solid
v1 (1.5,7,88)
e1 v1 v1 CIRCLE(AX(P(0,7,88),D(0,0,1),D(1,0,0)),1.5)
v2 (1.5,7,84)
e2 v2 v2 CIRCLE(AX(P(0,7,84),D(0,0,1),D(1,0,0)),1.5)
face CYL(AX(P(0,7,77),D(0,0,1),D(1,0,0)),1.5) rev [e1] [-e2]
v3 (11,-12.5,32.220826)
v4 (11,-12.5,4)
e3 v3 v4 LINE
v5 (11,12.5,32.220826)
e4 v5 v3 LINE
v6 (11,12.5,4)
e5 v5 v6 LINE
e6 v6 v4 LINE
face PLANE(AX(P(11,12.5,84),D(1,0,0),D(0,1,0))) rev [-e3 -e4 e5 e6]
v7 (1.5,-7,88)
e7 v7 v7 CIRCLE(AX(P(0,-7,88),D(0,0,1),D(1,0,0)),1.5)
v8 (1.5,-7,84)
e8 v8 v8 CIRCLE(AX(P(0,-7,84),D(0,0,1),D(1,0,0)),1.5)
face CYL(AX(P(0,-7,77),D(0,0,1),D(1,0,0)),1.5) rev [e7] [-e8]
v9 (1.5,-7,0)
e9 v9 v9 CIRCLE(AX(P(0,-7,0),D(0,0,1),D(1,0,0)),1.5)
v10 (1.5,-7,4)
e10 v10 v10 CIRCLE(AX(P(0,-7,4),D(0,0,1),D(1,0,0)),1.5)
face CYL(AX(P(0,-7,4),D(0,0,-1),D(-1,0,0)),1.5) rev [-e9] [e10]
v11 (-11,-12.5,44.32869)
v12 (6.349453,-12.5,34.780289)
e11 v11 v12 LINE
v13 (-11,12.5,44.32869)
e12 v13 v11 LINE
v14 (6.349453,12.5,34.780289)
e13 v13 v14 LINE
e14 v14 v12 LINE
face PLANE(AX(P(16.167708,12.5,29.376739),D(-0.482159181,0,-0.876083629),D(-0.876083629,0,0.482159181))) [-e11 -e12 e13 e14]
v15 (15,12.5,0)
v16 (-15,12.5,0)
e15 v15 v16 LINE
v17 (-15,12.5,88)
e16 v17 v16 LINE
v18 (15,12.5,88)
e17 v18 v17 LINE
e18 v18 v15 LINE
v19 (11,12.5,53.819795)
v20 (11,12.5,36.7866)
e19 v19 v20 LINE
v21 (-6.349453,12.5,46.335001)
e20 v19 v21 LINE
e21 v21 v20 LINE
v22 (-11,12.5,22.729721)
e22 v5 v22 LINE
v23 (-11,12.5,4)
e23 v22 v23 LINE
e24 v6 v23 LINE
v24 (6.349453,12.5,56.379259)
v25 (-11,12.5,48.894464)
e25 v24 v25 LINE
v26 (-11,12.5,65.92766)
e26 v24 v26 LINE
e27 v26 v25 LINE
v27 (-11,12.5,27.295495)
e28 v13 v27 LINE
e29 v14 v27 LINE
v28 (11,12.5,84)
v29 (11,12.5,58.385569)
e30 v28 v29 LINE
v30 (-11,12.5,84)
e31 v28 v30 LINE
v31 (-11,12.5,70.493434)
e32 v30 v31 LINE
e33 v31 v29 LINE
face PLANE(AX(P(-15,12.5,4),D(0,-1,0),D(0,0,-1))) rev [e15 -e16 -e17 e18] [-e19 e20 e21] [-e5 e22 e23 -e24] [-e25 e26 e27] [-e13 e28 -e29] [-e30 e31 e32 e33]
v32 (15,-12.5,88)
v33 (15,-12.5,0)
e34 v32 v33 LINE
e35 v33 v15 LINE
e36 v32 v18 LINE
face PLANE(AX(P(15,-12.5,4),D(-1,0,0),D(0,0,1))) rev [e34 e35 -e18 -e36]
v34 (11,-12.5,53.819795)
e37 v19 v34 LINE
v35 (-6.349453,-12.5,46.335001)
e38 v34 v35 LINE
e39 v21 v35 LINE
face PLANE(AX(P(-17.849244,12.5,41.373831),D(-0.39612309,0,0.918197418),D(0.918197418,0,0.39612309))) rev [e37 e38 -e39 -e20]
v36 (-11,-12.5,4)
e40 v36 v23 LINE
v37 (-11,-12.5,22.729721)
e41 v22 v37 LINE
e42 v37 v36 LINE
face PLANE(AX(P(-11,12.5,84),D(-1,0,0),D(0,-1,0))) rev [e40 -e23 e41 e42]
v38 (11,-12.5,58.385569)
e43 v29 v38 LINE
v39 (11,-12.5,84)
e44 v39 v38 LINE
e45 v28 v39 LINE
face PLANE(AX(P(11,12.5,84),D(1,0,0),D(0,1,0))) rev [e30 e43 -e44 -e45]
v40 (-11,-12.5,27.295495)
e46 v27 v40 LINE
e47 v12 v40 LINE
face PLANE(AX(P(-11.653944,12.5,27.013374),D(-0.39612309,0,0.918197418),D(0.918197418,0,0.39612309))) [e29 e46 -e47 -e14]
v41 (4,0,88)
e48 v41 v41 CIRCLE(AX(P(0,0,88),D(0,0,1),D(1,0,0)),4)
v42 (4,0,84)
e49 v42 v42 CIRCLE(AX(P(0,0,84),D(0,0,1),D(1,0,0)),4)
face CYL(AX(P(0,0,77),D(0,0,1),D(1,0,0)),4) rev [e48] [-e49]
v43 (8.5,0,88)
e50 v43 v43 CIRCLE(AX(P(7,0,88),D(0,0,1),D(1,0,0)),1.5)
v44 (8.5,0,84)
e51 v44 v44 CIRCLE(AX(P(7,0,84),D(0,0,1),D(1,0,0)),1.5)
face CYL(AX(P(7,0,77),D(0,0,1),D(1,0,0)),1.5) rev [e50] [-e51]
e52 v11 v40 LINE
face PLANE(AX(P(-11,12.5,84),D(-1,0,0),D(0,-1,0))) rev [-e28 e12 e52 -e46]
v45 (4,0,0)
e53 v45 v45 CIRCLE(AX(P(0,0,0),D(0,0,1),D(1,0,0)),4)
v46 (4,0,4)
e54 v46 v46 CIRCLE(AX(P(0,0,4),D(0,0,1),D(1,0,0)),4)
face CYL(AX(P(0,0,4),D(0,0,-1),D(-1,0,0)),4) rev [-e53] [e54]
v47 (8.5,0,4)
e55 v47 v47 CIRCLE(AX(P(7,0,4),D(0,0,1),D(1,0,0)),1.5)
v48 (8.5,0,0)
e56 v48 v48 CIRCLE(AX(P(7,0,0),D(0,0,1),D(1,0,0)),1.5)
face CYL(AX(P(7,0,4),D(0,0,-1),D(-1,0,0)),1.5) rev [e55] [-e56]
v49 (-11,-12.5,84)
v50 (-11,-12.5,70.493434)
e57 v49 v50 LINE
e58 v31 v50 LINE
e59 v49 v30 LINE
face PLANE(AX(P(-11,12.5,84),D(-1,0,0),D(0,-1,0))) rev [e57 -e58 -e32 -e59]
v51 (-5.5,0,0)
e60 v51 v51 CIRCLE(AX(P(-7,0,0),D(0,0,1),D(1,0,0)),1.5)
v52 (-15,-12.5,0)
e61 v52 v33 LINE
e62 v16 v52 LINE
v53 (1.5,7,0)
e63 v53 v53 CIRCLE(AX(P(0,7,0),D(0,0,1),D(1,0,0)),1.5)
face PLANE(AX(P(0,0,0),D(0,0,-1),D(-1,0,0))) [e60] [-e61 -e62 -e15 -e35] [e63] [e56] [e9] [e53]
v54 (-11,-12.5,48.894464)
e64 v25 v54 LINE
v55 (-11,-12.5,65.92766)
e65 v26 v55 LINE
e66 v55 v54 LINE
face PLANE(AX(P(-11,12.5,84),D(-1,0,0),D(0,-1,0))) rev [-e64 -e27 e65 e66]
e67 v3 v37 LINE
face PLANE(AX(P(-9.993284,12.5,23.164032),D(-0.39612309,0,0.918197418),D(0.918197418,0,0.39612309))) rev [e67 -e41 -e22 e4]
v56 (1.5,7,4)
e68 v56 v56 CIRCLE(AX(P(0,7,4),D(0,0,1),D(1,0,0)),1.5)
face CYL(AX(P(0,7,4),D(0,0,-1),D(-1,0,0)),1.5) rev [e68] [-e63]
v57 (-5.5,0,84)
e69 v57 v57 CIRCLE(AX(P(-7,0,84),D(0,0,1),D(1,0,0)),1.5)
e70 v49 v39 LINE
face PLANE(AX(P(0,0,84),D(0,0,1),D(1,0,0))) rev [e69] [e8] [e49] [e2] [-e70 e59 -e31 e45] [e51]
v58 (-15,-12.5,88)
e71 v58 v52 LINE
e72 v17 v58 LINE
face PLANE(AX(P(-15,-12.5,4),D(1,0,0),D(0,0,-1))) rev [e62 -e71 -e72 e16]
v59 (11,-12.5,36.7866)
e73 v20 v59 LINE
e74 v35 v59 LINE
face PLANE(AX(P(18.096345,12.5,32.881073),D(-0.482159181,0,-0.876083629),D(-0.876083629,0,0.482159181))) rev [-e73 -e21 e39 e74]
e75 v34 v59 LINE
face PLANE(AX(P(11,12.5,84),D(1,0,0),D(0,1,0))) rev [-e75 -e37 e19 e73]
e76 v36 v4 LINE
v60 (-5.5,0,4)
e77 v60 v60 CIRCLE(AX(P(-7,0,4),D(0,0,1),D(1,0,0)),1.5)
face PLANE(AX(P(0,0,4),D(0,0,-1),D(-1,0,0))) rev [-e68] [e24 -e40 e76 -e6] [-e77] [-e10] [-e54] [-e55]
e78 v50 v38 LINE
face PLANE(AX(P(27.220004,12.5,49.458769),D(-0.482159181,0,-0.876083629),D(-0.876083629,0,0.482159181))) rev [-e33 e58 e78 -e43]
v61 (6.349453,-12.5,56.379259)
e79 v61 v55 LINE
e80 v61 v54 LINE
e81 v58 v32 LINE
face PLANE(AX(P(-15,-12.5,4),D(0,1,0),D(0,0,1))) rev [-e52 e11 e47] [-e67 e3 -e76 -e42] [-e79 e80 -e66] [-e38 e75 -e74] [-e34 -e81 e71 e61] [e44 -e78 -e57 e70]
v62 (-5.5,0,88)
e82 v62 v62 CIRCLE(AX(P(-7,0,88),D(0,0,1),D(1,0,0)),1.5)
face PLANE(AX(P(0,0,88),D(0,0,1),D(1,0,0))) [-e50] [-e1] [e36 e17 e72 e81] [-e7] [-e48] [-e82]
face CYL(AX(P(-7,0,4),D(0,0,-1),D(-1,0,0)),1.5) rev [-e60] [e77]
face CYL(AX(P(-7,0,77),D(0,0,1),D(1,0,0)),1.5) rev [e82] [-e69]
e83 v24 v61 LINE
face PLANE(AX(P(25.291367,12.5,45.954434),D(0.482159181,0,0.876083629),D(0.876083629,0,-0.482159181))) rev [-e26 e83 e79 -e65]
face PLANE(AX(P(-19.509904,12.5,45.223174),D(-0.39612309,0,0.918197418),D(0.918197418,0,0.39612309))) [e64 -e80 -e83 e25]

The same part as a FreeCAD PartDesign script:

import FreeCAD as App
import Part
import Sketcher
from FreeCAD import Vector
Q = App.Units.Quantity

doc = App.newDocument("Part")
body = doc.addObject("PartDesign::Body", "Body")

# Sketch on XY plane
sketch1 = body.newObject("Sketcher::SketchObject", "Sketch")
sketch1.AttachmentSupport = (doc.getObject("XY_Plane"), [""])
sketch1.MapMode = "FlatFace"
sketch1.addGeometry(Part.LineSegment(Vector(-15, 12.5, 0), Vector(-15, -12.5, 0)), False)
sketch1.addGeometry(Part.LineSegment(Vector(-15, -12.5, 0), Vector(15, -12.5, 0)), False)
sketch1.addGeometry(Part.LineSegment(Vector(15, -12.5, 0), Vector(15, 12.5, 0)), False)
sketch1.addGeometry(Part.LineSegment(Vector(15, 12.5, 0), Vector(-15, 12.5, 0)), False)
sketch1.addGeometry(Part.Circle(Vector(0, -7, 0), Vector(0, 0, 1), 1.5), False)
sketch1.addGeometry(Part.Circle(Vector(-7, 0, 0), Vector(0, 0, 1), 1.5), False)
sketch1.addGeometry(Part.Circle(Vector(0, 0, 0), Vector(0, 0, 1), 4), False)
sketch1.addGeometry(Part.Circle(Vector(7, 0, 0), Vector(0, 0, 1), 1.5), False)
sketch1.addGeometry(Part.Circle(Vector(0, 7, 0), Vector(0, 0, 1), 1.5), False)
sketch1.addConstraint(Sketcher.Constraint("Coincident", 0, 2, 1, 1))
sketch1.addConstraint(Sketcher.Constraint("Coincident", 1, 2, 2, 1))
sketch1.addConstraint(Sketcher.Constraint("Coincident", 2, 2, 3, 1))
sketch1.addConstraint(Sketcher.Constraint("Coincident", 3, 2, 0, 1))
sketch1.addConstraint(Sketcher.Constraint("Vertical", 0))
sketch1.addConstraint(Sketcher.Constraint("Horizontal", 1))
sketch1.addConstraint(Sketcher.Constraint("Vertical", 2))
sketch1.addConstraint(Sketcher.Constraint("Horizontal", 3))
sketch1.addConstraint(Sketcher.Constraint("Coincident", 6, 3, -1, 1))
sketch1.addConstraint(Sketcher.Constraint("Equal", 4, 5))
sketch1.addConstraint(Sketcher.Constraint("Equal", 5, 7))
sketch1.addConstraint(Sketcher.Constraint("Equal", 7, 8))
sketch1.addConstraint(Sketcher.Constraint("Symmetric", 5, 3, 7, 3, -1, 1))
sketch1.addConstraint(Sketcher.Constraint("Symmetric", 4, 3, 8, 3, -1, 1))
sketch1.addConstraint(Sketcher.Constraint("Symmetric", 0, 2, 2, 2, -1, 1))
sketch1.addConstraint(Sketcher.Constraint("PointOnObject", 4, 3, -2))
sketch1.addConstraint(Sketcher.Constraint("PointOnObject", 5, 3, -1))
sketch1.addConstraint(Sketcher.Constraint("Diameter", 4, Q("3 mm")))
sketch1.addConstraint(Sketcher.Constraint("Diameter", 6, Q("8 mm")))
sketch1.addConstraint(Sketcher.Constraint("DistanceX", 1, 1, 1, 2, Q("30 mm")))
sketch1.addConstraint(Sketcher.Constraint("DistanceY", 0, 2, 0, 1, Q("25 mm")))
sketch1.addConstraint(Sketcher.Constraint("DistanceY", 4, 3, -1, 1, Q("7 mm")))
sketch1.addConstraint(Sketcher.Constraint("DistanceX", 5, 3, -1, 1, Q("7 mm")))
pad1 = body.newObject("PartDesign::Pad", "Pad")
pad1.Profile = sketch1
pad1.Length = 4

# Sketch on XY plane
sketch2 = body.newObject("Sketcher::SketchObject", "Sketch001")
sketch2.AttachmentSupport = (doc.getObject("XY_Plane"), [""])
sketch2.MapMode = "FlatFace"
sketch2.AttachmentOffset = App.Placement(Vector(0, 0, 4), App.Rotation())
sketch2.addGeometry(Part.LineSegment(Vector(-15, 12.5, 0), Vector(-15, -12.5, 0)), False)
sketch2.addGeometry(Part.LineSegment(Vector(-15, -12.5, 0), Vector(-11, -12.5, 0)), False)
sketch2.addGeometry(Part.LineSegment(Vector(-11, -12.5, 0), Vector(-11, 12.5, 0)), False)
sketch2.addGeometry(Part.LineSegment(Vector(-11, 12.5, 0), Vector(-15, 12.5, 0)), False)
sketch2.addGeometry(Part.LineSegment(Vector(11, 12.5, 0), Vector(11, -12.5, 0)), False)
sketch2.addGeometry(Part.LineSegment(Vector(11, -12.5, 0), Vector(15, -12.5, 0)), False)
sketch2.addGeometry(Part.LineSegment(Vector(15, -12.5, 0), Vector(15, 12.5, 0)), False)
sketch2.addGeometry(Part.LineSegment(Vector(15, 12.5, 0), Vector(11, 12.5, 0)), False)
sketch2.addConstraint(Sketcher.Constraint("Coincident", 0, 2, 1, 1))
sketch2.addConstraint(Sketcher.Constraint("Coincident", 1, 2, 2, 1))
sketch2.addConstraint(Sketcher.Constraint("Coincident", 2, 2, 3, 1))
sketch2.addConstraint(Sketcher.Constraint("Coincident", 3, 2, 0, 1))
sketch2.addConstraint(Sketcher.Constraint("Coincident", 4, 2, 5, 1))
sketch2.addConstraint(Sketcher.Constraint("Coincident", 5, 2, 6, 1))
sketch2.addConstraint(Sketcher.Constraint("Coincident", 6, 2, 7, 1))
sketch2.addConstraint(Sketcher.Constraint("Coincident", 7, 2, 4, 1))
sketch2.addConstraint(Sketcher.Constraint("Vertical", 0))
sketch2.addConstraint(Sketcher.Constraint("Horizontal", 1))
sketch2.addConstraint(Sketcher.Constraint("Vertical", 2))
sketch2.addConstraint(Sketcher.Constraint("Horizontal", 3))
sketch2.addConstraint(Sketcher.Constraint("Vertical", 4))
sketch2.addConstraint(Sketcher.Constraint("Horizontal", 5))
sketch2.addConstraint(Sketcher.Constraint("Vertical", 6))
sketch2.addConstraint(Sketcher.Constraint("Horizontal", 7))
sketch2.addConstraint(Sketcher.Constraint("Symmetric", 2, 2, 4, 2, -1, 1))
sketch2.addConstraint(Sketcher.Constraint("Symmetric", 0, 2, 6, 2, -1, 1))
sketch2.addConstraint(Sketcher.Constraint("Horizontal", 1, 2, 4, 2))
sketch2.addConstraint(Sketcher.Constraint("DistanceX", 1, 1, 1, 2, Q("4 mm")))
sketch2.addConstraint(Sketcher.Constraint("DistanceY", 0, 2, 0, 1, Q("25 mm")))
sketch2.addConstraint(Sketcher.Constraint("DistanceX", 0, 2, -1, 1, Q("15 mm")))
pad2 = body.newObject("PartDesign::Pad", "Pad001")
pad2.Profile = sketch2
pad2.Length = 80

# Sketch on XY plane
sketch3 = body.newObject("Sketcher::SketchObject", "Sketch002")
sketch3.AttachmentSupport = (doc.getObject("XY_Plane"), [""])
sketch3.MapMode = "FlatFace"
sketch3.AttachmentOffset = App.Placement(Vector(0, 0, 84), App.Rotation())
sketch3.addGeometry(Part.LineSegment(Vector(-15, 12, 0), Vector(-15, -12, 0)), False)
sketch3.addGeometry(Part.LineSegment(Vector(-15, -12, 0), Vector(15, -12, 0)), False)
sketch3.addGeometry(Part.LineSegment(Vector(15, -12, 0), Vector(15, 12, 0)), False)
sketch3.addGeometry(Part.LineSegment(Vector(15, 12, 0), Vector(-15, 12, 0)), False)
sketch3.addConstraint(Sketcher.Constraint("Coincident", 0, 2, 1, 1))
sketch3.addConstraint(Sketcher.Constraint("Coincident", 1, 2, 2, 1))
sketch3.addConstraint(Sketcher.Constraint("Coincident", 2, 2, 3, 1))
sketch3.addConstraint(Sketcher.Constraint("Coincident", 3, 2, 0, 1))
sketch3.addConstraint(Sketcher.Constraint("Vertical", 0))
sketch3.addConstraint(Sketcher.Constraint("Horizontal", 1))
sketch3.addConstraint(Sketcher.Constraint("Vertical", 2))
sketch3.addConstraint(Sketcher.Constraint("Horizontal", 3))
sketch3.addConstraint(Sketcher.Constraint("Symmetric", 0, 2, 2, 2, -1, 1))
sketch3.addConstraint(Sketcher.Constraint("DistanceX", 1, 1, 1, 2, Q("30 mm")))
sketch3.addConstraint(Sketcher.Constraint("DistanceY", 0, 2, 0, 1, Q("25 mm")))
pad3 = body.newObject("PartDesign::Pad", "Pad002")
pad3.Profile = sketch3
pad3.Length = 4

# Sketch on XY plane
sketch4 = body.newObject("Sketcher::SketchObject", "Sketch003")
sketch4.AttachmentSupport = (doc.getObject("XY_Plane"), [""])
sketch4.MapMode = "FlatFace"
sketch4.AttachmentOffset = App.Placement(Vector(0, 0, 77), App.Rotation())
sketch4.addGeometry(Part.Circle(Vector(-7, 0, 0), Vector(0, 0, 1), 1.5), False)
sketch4.addGeometry(Part.Circle(Vector(0, -7, 0), Vector(0, 0, 1), 1.5), False)
sketch4.addGeometry(Part.Circle(Vector(7, 0, 0), Vector(0, 0, 1), 1.5), False)
sketch4.addGeometry(Part.Circle(Vector(0, 0, 0), Vector(0, 0, 1), 4), False)
sketch4.addGeometry(Part.Circle(Vector(0, 7, 0), Vector(0, 0, 1), 1.5), False)
sketch4.addConstraint(Sketcher.Constraint("Coincident", 3, 3, -1, 1))
sketch4.addConstraint(Sketcher.Constraint("Equal", 0, 1))
sketch4.addConstraint(Sketcher.Constraint("Equal", 1, 2))
sketch4.addConstraint(Sketcher.Constraint("Equal", 2, 4))
sketch4.addConstraint(Sketcher.Constraint("Symmetric", 0, 3, 2, 3, -1, 1))
sketch4.addConstraint(Sketcher.Constraint("Symmetric", 1, 3, 4, 3, -1, 1))
sketch4.addConstraint(Sketcher.Constraint("PointOnObject", 0, 3, -1))
sketch4.addConstraint(Sketcher.Constraint("PointOnObject", 1, 3, -2))
sketch4.addConstraint(Sketcher.Constraint("Diameter", 0, Q("3 mm")))
sketch4.addConstraint(Sketcher.Constraint("Diameter", 3, Q("8 mm")))
sketch4.addConstraint(Sketcher.Constraint("DistanceX", 0, 3, -1, 1, Q("7 mm")))
sketch4.addConstraint(Sketcher.Constraint("DistanceY", 1, 3, -1, 1, Q("7 mm")))
pocket1 = body.newObject("PartDesign::Pocket", "Pocket")
pocket1.Profile = sketch4
pocket1.Length = 11
pocket1.Reversed = True

# Sketch on XZ plane
sketch5 = body.newObject("Sketcher::SketchObject", "Sketch004")
sketch5.AttachmentSupport = (doc.getObject("XZ_Plane"), [""])
sketch5.MapMode = "FlatFace"
sketch5.AttachmentOffset = App.Placement(Vector(0, 0, 12.5), App.Rotation())
sketch5.addGeometry(Part.LineSegment(Vector(11, 58.4, 0), Vector(-11, 70.5, 0)), False)
sketch5.addGeometry(Part.LineSegment(Vector(-11, 70.5, 0), Vector(-11, 65.9, 0)), False)
sketch5.addGeometry(Part.LineSegment(Vector(-11, 65.9, 0), Vector(6.3, 56.4, 0)), False)
sketch5.addGeometry(Part.LineSegment(Vector(6.3, 56.4, 0), Vector(-11, 48.9, 0)), False)
sketch5.addGeometry(Part.LineSegment(Vector(-11, 48.9, 0), Vector(-11, 44.3, 0)), False)
sketch5.addGeometry(Part.LineSegment(Vector(-11, 44.3, 0), Vector(6.3, 34.8, 0)), False)
sketch5.addGeometry(Part.LineSegment(Vector(6.3, 34.8, 0), Vector(-11, 27.3, 0)), False)
sketch5.addGeometry(Part.LineSegment(Vector(-11, 27.3, 0), Vector(-11, 22.7, 0)), False)
sketch5.addGeometry(Part.LineSegment(Vector(-11, 22.7, 0), Vector(11, 32.2, 0)), False)
sketch5.addGeometry(Part.LineSegment(Vector(11, 32.2, 0), Vector(11, 36.8, 0)), False)
sketch5.addGeometry(Part.LineSegment(Vector(11, 36.8, 0), Vector(-6.3, 46.3, 0)), False)
sketch5.addGeometry(Part.LineSegment(Vector(-6.3, 46.3, 0), Vector(11, 53.8, 0)), False)
sketch5.addGeometry(Part.LineSegment(Vector(11, 53.8, 0), Vector(11, 58.4, 0)), False)
sketch5.addConstraint(Sketcher.Constraint("Coincident", 0, 2, 1, 1))
sketch5.addConstraint(Sketcher.Constraint("Coincident", 1, 2, 2, 1))
sketch5.addConstraint(Sketcher.Constraint("Coincident", 2, 2, 3, 1))
sketch5.addConstraint(Sketcher.Constraint("Coincident", 3, 2, 4, 1))
sketch5.addConstraint(Sketcher.Constraint("Coincident", 4, 2, 5, 1))
sketch5.addConstraint(Sketcher.Constraint("Coincident", 5, 2, 6, 1))
sketch5.addConstraint(Sketcher.Constraint("Coincident", 6, 2, 7, 1))
sketch5.addConstraint(Sketcher.Constraint("Coincident", 7, 2, 8, 1))
sketch5.addConstraint(Sketcher.Constraint("Coincident", 8, 2, 9, 1))
sketch5.addConstraint(Sketcher.Constraint("Coincident", 9, 2, 10, 1))
sketch5.addConstraint(Sketcher.Constraint("Coincident", 10, 2, 11, 1))
sketch5.addConstraint(Sketcher.Constraint("Coincident", 11, 2, 12, 1))
sketch5.addConstraint(Sketcher.Constraint("Coincident", 12, 2, 0, 1))
sketch5.addConstraint(Sketcher.Constraint("Vertical", 1))
sketch5.addConstraint(Sketcher.Constraint("Vertical", 4))
sketch5.addConstraint(Sketcher.Constraint("Vertical", 7))
sketch5.addConstraint(Sketcher.Constraint("Vertical", 9))
sketch5.addConstraint(Sketcher.Constraint("Vertical", 12))
sketch5.addConstraint(Sketcher.Constraint("Parallel", 0, 2))
sketch5.addConstraint(Sketcher.Constraint("Parallel", 2, 5))
sketch5.addConstraint(Sketcher.Constraint("Parallel", 3, 6))
sketch5.addConstraint(Sketcher.Constraint("Parallel", 6, 8))
sketch5.addConstraint(Sketcher.Constraint("Parallel", 5, 10))
sketch5.addConstraint(Sketcher.Constraint("Parallel", 8, 11))
sketch5.addConstraint(Sketcher.Constraint("Vertical", 1, 2, 3, 2))
sketch5.addConstraint(Sketcher.Constraint("Vertical", 2, 2, 5, 2))
sketch5.addConstraint(Sketcher.Constraint("Vertical", 4, 2, 6, 2))
sketch5.addConstraint(Sketcher.Constraint("Vertical", 9, 2, 11, 2))
sketch5.addConstraint(Sketcher.Constraint("Equal", 1, 4))
sketch5.addConstraint(Sketcher.Constraint("Equal", 4, 7))
sketch5.addConstraint(Sketcher.Constraint("Equal", 7, 9))
sketch5.addConstraint(Sketcher.Constraint("Equal", 9, 12))
sketch5.addConstraint(Sketcher.Constraint("Equal", 5, 10))
sketch5.addConstraint(Sketcher.Constraint("DistanceX", 0, 2, -1, 1, Q("11 mm")))
sketch5.addConstraint(Sketcher.Constraint("DistanceX", -1, 1, 8, 2, Q("11 mm")))
sketch5.addConstraint(Sketcher.Constraint("DistanceY", -1, 1, 10, 2, Q("46.335001 mm")))
sketch5.addConstraint(Sketcher.Constraint("DistanceY", -1, 1, 9, 2, Q("36.7866 mm")))
sketch5.addConstraint(Sketcher.Constraint("Distance", 2, Q("19.803421 mm")))
sketch5.addConstraint(Sketcher.Constraint("Distance", 8, Q("23.959989 mm")))
pad4 = body.newObject("PartDesign::Pad", "Pad003")
pad4.Profile = sketch5
pad4.Length = 25
pad4.Reversed = True

doc.recompute()
